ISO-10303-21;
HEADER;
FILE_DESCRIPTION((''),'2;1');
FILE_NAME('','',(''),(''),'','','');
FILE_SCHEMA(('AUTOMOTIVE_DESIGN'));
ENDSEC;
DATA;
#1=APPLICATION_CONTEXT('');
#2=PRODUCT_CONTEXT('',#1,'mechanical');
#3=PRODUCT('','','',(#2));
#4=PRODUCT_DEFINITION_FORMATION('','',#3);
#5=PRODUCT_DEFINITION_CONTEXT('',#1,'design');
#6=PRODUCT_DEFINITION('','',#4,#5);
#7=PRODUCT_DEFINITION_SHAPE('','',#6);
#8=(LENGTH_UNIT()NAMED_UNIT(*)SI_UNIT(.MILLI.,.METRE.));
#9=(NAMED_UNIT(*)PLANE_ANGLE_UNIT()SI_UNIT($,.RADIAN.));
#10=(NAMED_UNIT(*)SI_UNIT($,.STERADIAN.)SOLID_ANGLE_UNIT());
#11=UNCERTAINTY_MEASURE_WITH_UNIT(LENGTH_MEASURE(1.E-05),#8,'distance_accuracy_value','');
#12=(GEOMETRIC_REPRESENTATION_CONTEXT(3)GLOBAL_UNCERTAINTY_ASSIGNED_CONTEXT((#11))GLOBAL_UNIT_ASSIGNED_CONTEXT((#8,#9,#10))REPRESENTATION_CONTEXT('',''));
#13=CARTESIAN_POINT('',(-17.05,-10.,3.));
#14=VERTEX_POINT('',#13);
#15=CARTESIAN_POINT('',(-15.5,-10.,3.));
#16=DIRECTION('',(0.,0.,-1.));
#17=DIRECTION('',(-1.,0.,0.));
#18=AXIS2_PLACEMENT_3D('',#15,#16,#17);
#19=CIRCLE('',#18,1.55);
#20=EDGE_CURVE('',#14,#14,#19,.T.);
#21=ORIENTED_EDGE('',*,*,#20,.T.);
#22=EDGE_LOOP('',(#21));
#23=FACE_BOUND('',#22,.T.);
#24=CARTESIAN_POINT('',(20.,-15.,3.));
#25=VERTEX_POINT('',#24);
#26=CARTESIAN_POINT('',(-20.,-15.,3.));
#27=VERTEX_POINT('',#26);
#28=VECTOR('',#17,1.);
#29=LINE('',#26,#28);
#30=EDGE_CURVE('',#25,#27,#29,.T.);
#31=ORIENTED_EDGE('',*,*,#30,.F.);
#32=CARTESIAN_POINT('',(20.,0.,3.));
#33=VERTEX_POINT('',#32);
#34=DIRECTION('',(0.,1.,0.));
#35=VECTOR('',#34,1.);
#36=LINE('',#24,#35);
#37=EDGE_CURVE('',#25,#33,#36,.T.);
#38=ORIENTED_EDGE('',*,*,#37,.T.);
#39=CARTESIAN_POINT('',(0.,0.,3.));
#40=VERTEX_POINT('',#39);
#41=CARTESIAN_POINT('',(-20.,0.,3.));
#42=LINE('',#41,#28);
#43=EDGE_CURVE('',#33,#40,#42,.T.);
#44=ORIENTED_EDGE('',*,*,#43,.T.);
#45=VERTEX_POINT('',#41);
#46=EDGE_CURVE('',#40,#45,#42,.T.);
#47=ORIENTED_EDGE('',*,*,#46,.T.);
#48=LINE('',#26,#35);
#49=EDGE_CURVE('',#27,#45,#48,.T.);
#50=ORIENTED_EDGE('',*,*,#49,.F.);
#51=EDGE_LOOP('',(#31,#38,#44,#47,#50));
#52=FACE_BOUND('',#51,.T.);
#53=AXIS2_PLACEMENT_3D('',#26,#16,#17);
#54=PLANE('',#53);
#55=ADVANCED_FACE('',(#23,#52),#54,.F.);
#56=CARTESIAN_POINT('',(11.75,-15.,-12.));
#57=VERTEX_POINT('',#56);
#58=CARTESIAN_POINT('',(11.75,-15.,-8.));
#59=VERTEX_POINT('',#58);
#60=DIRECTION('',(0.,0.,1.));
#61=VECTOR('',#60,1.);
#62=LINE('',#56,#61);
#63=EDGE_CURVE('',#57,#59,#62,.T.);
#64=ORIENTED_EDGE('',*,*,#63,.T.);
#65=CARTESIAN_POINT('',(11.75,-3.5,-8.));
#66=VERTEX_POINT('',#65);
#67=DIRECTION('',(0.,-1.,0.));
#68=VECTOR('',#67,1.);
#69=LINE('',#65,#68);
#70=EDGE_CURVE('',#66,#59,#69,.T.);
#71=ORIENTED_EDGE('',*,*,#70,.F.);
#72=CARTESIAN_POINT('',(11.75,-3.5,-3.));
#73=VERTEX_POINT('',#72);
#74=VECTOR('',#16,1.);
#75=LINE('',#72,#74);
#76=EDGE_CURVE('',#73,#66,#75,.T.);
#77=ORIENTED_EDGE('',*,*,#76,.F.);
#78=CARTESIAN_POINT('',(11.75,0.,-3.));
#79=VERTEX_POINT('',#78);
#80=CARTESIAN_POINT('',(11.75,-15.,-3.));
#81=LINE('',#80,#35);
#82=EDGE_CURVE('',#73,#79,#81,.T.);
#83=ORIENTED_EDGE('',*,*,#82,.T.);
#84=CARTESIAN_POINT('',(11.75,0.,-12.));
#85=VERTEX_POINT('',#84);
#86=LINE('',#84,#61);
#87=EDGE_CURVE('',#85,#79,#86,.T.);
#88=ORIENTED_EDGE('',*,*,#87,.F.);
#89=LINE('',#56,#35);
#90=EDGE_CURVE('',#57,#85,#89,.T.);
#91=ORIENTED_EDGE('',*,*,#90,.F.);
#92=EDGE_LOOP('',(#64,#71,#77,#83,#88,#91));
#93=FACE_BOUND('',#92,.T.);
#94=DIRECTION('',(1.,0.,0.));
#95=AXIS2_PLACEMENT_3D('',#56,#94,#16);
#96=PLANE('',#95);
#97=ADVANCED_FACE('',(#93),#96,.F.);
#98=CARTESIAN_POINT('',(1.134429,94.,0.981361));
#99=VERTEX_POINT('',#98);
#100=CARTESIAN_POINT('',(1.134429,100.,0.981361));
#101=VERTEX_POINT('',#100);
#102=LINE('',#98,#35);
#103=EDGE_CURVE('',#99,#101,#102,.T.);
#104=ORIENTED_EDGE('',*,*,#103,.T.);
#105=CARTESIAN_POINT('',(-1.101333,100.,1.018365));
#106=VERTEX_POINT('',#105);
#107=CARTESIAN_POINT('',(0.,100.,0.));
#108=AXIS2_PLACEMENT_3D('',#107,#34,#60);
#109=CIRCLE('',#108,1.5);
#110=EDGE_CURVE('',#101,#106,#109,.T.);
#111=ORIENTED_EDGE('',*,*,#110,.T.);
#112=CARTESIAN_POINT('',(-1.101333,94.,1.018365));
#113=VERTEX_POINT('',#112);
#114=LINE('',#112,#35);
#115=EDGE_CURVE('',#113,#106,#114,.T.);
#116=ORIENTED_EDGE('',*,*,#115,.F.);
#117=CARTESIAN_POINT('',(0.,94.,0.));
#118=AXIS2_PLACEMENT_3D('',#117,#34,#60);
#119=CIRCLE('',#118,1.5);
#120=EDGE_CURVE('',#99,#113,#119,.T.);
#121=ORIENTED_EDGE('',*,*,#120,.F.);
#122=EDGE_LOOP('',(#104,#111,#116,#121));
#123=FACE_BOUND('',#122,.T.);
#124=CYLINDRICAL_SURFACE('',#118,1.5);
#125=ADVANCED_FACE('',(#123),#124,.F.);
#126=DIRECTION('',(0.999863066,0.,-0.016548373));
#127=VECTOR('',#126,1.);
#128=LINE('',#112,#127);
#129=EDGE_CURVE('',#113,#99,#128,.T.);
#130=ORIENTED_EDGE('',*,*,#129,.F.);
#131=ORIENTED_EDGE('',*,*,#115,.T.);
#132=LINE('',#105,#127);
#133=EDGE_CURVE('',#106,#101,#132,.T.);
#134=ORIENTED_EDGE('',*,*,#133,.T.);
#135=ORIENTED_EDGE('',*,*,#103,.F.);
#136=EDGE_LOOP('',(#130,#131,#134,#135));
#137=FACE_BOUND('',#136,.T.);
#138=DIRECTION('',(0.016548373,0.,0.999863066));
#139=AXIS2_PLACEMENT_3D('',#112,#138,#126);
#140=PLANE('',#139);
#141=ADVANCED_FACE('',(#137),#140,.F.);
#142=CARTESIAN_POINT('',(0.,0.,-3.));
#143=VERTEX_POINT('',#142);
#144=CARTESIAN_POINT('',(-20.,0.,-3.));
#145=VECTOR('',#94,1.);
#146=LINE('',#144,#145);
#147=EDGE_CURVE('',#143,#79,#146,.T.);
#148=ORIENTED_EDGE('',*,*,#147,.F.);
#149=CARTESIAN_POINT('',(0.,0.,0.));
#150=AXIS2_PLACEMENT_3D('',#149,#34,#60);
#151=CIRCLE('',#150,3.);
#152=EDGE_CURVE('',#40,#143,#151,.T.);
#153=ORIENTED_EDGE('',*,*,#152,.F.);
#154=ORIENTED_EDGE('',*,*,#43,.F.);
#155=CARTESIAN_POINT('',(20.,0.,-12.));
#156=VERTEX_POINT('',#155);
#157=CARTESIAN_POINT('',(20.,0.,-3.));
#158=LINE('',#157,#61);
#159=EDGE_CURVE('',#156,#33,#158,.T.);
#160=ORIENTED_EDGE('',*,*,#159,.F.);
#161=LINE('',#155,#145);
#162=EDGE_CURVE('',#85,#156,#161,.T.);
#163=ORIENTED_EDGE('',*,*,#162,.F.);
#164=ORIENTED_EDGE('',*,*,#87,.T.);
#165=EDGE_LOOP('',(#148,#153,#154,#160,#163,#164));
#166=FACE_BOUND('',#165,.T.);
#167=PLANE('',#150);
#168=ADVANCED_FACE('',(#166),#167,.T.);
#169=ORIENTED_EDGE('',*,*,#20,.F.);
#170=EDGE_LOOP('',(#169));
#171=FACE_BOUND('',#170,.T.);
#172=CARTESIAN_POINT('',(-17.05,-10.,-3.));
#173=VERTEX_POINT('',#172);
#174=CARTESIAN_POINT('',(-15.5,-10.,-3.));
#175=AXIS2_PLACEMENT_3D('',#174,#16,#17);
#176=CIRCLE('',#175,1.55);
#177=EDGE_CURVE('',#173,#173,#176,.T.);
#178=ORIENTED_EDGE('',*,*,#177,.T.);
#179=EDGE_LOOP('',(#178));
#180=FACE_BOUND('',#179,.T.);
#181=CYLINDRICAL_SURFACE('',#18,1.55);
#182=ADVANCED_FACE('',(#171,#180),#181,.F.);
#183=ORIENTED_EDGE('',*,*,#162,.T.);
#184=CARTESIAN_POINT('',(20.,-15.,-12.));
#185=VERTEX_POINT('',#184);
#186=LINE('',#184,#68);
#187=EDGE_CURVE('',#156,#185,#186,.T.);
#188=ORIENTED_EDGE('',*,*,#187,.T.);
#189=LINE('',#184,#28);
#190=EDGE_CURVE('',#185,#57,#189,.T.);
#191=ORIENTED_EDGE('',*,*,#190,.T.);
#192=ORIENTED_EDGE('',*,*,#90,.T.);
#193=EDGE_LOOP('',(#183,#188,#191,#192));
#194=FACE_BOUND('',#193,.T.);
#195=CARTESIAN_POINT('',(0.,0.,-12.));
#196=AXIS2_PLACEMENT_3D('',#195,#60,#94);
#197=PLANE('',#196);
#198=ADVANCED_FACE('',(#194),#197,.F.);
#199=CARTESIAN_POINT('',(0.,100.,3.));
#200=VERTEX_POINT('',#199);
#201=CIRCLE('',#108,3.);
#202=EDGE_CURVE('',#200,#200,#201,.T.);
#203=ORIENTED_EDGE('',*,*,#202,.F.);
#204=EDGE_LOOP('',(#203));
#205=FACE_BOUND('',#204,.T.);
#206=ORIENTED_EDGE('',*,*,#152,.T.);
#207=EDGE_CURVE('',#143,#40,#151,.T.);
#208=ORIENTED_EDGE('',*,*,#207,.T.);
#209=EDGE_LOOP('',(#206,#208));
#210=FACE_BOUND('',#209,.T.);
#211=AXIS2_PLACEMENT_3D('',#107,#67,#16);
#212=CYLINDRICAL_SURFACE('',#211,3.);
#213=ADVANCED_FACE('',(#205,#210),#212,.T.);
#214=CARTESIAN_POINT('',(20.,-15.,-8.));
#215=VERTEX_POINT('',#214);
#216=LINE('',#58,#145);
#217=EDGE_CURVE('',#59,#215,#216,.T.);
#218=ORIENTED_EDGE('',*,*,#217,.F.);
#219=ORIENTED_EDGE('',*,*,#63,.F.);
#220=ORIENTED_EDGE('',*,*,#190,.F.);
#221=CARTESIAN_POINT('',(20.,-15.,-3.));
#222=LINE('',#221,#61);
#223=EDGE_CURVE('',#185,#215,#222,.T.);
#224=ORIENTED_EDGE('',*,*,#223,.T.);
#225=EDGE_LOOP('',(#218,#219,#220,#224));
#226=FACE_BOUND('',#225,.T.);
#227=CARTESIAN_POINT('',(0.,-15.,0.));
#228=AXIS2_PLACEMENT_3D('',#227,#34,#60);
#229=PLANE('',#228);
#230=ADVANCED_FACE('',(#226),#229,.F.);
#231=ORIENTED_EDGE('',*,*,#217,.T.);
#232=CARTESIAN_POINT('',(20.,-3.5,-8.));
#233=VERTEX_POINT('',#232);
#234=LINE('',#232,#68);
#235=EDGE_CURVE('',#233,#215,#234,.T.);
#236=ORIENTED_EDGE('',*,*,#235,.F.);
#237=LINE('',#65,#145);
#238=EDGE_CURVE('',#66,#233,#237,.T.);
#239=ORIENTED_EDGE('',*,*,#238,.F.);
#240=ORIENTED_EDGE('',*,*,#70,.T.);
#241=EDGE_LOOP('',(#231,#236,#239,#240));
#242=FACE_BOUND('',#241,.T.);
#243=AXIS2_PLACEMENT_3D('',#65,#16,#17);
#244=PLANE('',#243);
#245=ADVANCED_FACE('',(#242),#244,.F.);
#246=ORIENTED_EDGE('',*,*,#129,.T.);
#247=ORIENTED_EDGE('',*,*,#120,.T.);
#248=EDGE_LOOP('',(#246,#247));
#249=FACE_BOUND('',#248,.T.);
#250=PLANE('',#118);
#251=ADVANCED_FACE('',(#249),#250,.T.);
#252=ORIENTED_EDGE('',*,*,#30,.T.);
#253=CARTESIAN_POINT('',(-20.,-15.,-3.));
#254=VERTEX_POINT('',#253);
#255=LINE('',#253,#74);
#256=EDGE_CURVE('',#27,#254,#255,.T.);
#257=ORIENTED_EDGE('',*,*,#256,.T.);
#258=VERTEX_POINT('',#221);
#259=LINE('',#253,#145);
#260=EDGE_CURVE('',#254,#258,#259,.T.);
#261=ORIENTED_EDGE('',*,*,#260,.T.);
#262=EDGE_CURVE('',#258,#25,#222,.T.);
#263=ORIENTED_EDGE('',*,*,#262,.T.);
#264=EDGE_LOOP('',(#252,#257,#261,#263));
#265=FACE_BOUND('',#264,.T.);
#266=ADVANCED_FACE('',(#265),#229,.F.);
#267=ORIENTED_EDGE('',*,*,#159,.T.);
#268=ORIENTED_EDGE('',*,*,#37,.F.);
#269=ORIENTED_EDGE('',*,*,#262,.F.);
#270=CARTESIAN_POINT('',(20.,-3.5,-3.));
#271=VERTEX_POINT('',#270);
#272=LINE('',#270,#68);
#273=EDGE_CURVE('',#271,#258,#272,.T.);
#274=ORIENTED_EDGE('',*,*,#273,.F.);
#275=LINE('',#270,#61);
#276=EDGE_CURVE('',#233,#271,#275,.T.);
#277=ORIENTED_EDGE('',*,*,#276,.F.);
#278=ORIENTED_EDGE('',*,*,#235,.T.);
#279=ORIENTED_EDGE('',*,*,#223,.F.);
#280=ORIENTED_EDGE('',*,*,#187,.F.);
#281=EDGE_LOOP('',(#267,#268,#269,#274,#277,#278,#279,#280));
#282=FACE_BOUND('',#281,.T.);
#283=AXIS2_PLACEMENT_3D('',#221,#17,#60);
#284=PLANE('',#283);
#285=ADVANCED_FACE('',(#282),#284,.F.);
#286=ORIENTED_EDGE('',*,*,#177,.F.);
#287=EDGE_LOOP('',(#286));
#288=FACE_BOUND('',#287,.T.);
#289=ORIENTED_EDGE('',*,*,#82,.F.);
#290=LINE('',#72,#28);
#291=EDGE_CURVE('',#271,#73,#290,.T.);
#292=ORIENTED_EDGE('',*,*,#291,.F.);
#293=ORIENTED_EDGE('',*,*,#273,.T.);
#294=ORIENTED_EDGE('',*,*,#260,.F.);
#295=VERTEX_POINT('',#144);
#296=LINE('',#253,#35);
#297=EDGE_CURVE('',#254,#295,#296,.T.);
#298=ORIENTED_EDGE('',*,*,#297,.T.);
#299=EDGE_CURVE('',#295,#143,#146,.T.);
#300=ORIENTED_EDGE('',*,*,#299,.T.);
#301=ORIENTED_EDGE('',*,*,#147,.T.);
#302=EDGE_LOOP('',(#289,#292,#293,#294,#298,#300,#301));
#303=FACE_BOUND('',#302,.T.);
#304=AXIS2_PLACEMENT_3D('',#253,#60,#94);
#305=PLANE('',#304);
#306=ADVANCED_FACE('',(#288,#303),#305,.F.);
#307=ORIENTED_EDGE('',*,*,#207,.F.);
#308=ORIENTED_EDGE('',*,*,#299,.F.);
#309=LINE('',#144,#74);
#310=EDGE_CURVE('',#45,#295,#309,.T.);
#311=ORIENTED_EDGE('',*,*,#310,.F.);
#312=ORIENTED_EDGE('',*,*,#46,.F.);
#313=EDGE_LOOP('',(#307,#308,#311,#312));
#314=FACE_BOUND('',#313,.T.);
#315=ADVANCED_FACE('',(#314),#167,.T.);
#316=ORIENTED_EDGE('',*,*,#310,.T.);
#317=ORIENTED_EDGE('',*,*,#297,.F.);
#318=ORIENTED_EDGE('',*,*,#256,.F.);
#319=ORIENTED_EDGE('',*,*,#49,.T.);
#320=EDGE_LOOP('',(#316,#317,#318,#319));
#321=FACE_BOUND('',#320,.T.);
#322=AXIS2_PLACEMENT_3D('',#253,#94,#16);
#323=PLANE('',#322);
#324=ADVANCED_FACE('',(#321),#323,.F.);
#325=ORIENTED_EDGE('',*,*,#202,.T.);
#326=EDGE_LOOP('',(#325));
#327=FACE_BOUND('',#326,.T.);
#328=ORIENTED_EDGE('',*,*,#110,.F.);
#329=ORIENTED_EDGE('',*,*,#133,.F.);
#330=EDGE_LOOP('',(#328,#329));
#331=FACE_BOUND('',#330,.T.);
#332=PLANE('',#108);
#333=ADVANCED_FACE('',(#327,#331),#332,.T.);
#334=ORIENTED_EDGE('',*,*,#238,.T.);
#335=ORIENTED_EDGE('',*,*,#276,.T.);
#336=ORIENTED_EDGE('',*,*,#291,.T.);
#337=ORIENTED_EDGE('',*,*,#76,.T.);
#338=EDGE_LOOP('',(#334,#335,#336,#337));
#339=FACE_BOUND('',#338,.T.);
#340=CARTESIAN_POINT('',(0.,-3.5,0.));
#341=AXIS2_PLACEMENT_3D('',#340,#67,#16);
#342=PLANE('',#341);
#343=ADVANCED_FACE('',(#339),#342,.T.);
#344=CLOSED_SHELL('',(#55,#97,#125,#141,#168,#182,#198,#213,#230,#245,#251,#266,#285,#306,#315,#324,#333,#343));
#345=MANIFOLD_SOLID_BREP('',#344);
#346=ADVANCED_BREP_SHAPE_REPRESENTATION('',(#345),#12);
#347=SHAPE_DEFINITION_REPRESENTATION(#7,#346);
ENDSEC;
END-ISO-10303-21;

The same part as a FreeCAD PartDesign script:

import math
import FreeCAD as App
import Part
import Sketcher
from FreeCAD import Vector
Q = App.Units.Quantity


def add_polygon(sketch, points):
    """Adds a closed chain of lines whose ends are joined by coincident constraints."""
    first, n = sketch.GeometryCount, len(points)
    for a, b in zip(points, points[1:] + points[:1]):
        sketch.addGeometry(Part.LineSegment(App.Vector(*a, 0), App.Vector(*b, 0)), False)
    for i in range(n):
        sketch.addConstraint(Sketcher.Constraint("Coincident", first + i, 2, first + (i + 1) % n, 1))

doc = App.newDocument("Part")
params = doc.addObject("Spreadsheet::Sheet", "Params")
for row, (alias, value) in enumerate([
    ("sketch1_diameter", "6 mm"),
    ("pad1_length", "100 mm"),
    ("sketch2_radius", "1.5 mm"),
    ("pocket1_length", "6 mm"),
    ("sketch3_width", "40 mm"),
    ("sketch3_height", "6 mm"),
    ("pad2_length", "15 mm"),
    ("sketch4_diameter", "3.1 mm"),
    ("sketch5_height", "15 mm"),
    ("sketch5_width", "8.25 mm"),
    ("pad3_length", "9 mm"),
    ("sketch6_height", "5 mm"),
    ("sketch6_width", "8.25 mm"),
    ("pocket3_length", "11.5 mm"),
], start=1):
    params.set(f"A{row}", alias)
    params.set(f"B{row}", "=" + value)
    params.setAlias(f"B{row}", alias)

body = doc.addObject("PartDesign::Body", "Body")

# Sketch on XZ plane
sketch1 = doc.addObject("Sketcher::SketchObject", "Sketch")
body.addObject(sketch1)
sketch1.AttachmentSupport = (doc.XZ_Plane, [""])
sketch1.MapMode = "FlatFace"
sketch1.addGeometry(Part.Circle(Vector(0, 0, 0), Vector(0, 0, 1), 3), False)
sketch1.addConstraint([
    Sketcher.Constraint("Coincident", 0, 3, -1, 1),
    Sketcher.Constraint("Diameter", 0, Q("6 mm")),
])
sketch1.setExpression("Constraints[1]", "Params.sketch1_diameter")
pad1 = doc.addObject("PartDesign::Pad", "Pad")
body.addObject(pad1)
pad1.Profile = sketch1
pad1.setExpression("Length", "Params.pad1_length")
pad1.Reversed = True

# Sketch on XZ plane
sketch2 = doc.addObject("Sketcher::SketchObject", "Sketch001")
body.addObject(sketch2)
sketch2.AttachmentSupport = (doc.XZ_Plane, [""])
sketch2.MapMode = "FlatFace"
sketch2.AttachmentOffset = App.Placement(Vector(0, 0, -100), App.Rotation())
sketch2.addGeometry([
    Part.LineSegment(Vector(-1.1, 1, 0), Vector(1.1, 1, 0)),
    Part.ArcOfCircle(Part.Circle(Vector(0, 0, 0), Vector(0, 0, 1), 1.5), math.radians(137), math.radians(401)),
], False)
sketch2.addConstraint([
    Sketcher.Constraint("Coincident", 0, 1, 1, 1),
    Sketcher.Constraint("Coincident", 1, 2, 0, 2),
    Sketcher.Constraint("Coincident", 1, 3, -1, 1),
    Sketcher.Constraint("Radius", 1, Q("1.5 mm")),
    Sketcher.Constraint("DistanceX", -1, 1, 1, 2, Q("1.134429 mm")),
    Sketcher.Constraint("DistanceX", 0, 1, 1, 2, Q("2.235762 mm")),
])
sketch2.setExpression("Constraints[3]", "Params.sketch2_radius")
pocket1 = doc.addObject("PartDesign::Pocket", "Pocket")
body.addObject(pocket1)
pocket1.Profile = sketch2
pocket1.setExpression("Length", "Params.pocket1_length")
pocket1.Reversed = True

# Sketch on XZ plane
sketch3 = doc.addObject("Sketcher::SketchObject", "Sketch002")
body.addObject(sketch3)
sketch3.AttachmentSupport = (doc.XZ_Plane, [""])
sketch3.MapMode = "FlatFace"
add_polygon(sketch3, [(-20, 3), (-20, -3), (20, -3), (20, 3)])  # lines 0-3
sketch3.addConstraint([
    Sketcher.Constraint("Vertical", 0),
    Sketcher.Constraint("Horizontal", 1),
    Sketcher.Constraint("Vertical", 2),
    Sketcher.Constraint("Horizontal", 3),
    Sketcher.Constraint("Symmetric", 0, 2, 2, 2, -1, 1),
    Sketcher.Constraint("DistanceX", 1, 1, 1, 2, Q("40 mm")),
    Sketcher.Constraint("DistanceY", 0, 2, 0, 1, Q("6 mm")),
])
sketch3.setExpression("Constraints[9]", "Params.sketch3_width")
sketch3.setExpression("Constraints[10]", "Params.sketch3_height")
pad2 = doc.addObject("PartDesign::Pad", "Pad001")
body.addObject(pad2)
pad2.Profile = sketch3
pad2.setExpression("Length", "Params.pad2_length")

# Sketch on XY plane
sketch4 = doc.addObject("Sketcher::SketchObject", "Sketch003")
body.addObject(sketch4)
sketch4.AttachmentSupport = (doc.XY_Plane, [""])
sketch4.MapMode = "FlatFace"
sketch4.AttachmentOffset = App.Placement(Vector(0, 0, -3), App.Rotation())
sketch4.addGeometry(Part.Circle(Vector(-15.5, -10, 0), Vector(0, 0, 1), 1.6), False)
sketch4.addConstraint([
    Sketcher.Constraint("Diameter", 0, Q("3.1 mm")),
    Sketcher.Constraint("DistanceY", 0, 3, -1, 1, Q("10 mm")),
    Sketcher.Constraint("DistanceX", 0, 3, -1, 1, Q("15.5 mm")),
])
sketch4.setExpression("Constraints[0]", "Params.sketch4_diameter")
pocket2 = doc.addObject("PartDesign::Pocket", "Pocket001")
body.addObject(pocket2)
pocket2.Profile = sketch4
pocket2.Type = "ThroughAll"
pocket2.Reversed = True

# Sketch on XY plane
sketch5 = doc.addObject("Sketcher::SketchObject", "Sketch004")
body.addObject(sketch5)
sketch5.AttachmentSupport = (doc.XY_Plane, [""])
sketch5.MapMode = "FlatFace"
sketch5.AttachmentOffset = App.Placement(Vector(0, 0, -3), App.Rotation())
add_polygon(sketch5, [(20, 0), (20, -15), (12, -15), (12, 0)])  # lines 0-3
sketch5.addConstraint([
    Sketcher.Constraint("Vertical", 0),
    Sketcher.Constraint("Horizontal", 1),
    Sketcher.Constraint("Vertical", 2),
    Sketcher.Constraint("Horizontal", 3),
    Sketcher.Constraint("PointOnObject", 2, 2, -1),
    Sketcher.Constraint("DistanceY", 0, 2, 0, 1, Q("15 mm")),
    Sketcher.Constraint("DistanceX", -1, 1, 0, 2, Q("20 mm")),
    Sketcher.Constraint("DistanceX", 1, 2, 1, 1, Q("8.25 mm")),
])
sketch5.setExpression("Constraints[9]", "Params.sketch5_height")
sketch5.setExpression("Constraints[11]", "Params.sketch5_width")
pad3 = doc.addObject("PartDesign::Pad", "Pad002")
body.addObject(pad3)
pad3.Profile = sketch5
pad3.setExpression("Length", "Params.pad3_length")
pad3.Reversed = True

# Sketch on XZ plane
sketch6 = doc.addObject("Sketcher::SketchObject", "Sketch005")
body.addObject(sketch6)
sketch6.AttachmentSupport = (doc.XZ_Plane, [""])
sketch6.MapMode = "FlatFace"
sketch6.AttachmentOffset = App.Placement(Vector(0, 0, 15), App.Rotation())
add_polygon(sketch6, [(12, -3), (12, -8), (20, -8), (20, -3)])  # lines 0-3
sketch6.addConstraint([
    Sketcher.Constraint("Vertical", 0),
    Sketcher.Constraint("Horizontal", 1),
    Sketcher.Constraint("Vertical", 2),
    Sketcher.Constraint("Horizontal", 3),
    Sketcher.Constraint("DistanceY", 0, 2, 0, 1, Q("5 mm")),
    Sketcher.Constraint("DistanceY", 0, 2, -1, 1, Q("8 mm")),
    Sketcher.Constraint("DistanceX", -1, 1, 1, 2, Q("20 mm")),
    Sketcher.Constraint("DistanceX", 1, 1, 1, 2, Q("8.25 mm")),
])
sketch6.setExpression("Constraints[8]", "Params.sketch6_height")
sketch6.setExpression("Constraints[11]", "Params.sketch6_width")
pocket3 = doc.addObject("PartDesign::Pocket", "Pocket002")
body.addObject(pocket3)
pocket3.Profile = sketch6
pocket3.setExpression("Length", "Params.pocket3_length")

doc.recompute()
